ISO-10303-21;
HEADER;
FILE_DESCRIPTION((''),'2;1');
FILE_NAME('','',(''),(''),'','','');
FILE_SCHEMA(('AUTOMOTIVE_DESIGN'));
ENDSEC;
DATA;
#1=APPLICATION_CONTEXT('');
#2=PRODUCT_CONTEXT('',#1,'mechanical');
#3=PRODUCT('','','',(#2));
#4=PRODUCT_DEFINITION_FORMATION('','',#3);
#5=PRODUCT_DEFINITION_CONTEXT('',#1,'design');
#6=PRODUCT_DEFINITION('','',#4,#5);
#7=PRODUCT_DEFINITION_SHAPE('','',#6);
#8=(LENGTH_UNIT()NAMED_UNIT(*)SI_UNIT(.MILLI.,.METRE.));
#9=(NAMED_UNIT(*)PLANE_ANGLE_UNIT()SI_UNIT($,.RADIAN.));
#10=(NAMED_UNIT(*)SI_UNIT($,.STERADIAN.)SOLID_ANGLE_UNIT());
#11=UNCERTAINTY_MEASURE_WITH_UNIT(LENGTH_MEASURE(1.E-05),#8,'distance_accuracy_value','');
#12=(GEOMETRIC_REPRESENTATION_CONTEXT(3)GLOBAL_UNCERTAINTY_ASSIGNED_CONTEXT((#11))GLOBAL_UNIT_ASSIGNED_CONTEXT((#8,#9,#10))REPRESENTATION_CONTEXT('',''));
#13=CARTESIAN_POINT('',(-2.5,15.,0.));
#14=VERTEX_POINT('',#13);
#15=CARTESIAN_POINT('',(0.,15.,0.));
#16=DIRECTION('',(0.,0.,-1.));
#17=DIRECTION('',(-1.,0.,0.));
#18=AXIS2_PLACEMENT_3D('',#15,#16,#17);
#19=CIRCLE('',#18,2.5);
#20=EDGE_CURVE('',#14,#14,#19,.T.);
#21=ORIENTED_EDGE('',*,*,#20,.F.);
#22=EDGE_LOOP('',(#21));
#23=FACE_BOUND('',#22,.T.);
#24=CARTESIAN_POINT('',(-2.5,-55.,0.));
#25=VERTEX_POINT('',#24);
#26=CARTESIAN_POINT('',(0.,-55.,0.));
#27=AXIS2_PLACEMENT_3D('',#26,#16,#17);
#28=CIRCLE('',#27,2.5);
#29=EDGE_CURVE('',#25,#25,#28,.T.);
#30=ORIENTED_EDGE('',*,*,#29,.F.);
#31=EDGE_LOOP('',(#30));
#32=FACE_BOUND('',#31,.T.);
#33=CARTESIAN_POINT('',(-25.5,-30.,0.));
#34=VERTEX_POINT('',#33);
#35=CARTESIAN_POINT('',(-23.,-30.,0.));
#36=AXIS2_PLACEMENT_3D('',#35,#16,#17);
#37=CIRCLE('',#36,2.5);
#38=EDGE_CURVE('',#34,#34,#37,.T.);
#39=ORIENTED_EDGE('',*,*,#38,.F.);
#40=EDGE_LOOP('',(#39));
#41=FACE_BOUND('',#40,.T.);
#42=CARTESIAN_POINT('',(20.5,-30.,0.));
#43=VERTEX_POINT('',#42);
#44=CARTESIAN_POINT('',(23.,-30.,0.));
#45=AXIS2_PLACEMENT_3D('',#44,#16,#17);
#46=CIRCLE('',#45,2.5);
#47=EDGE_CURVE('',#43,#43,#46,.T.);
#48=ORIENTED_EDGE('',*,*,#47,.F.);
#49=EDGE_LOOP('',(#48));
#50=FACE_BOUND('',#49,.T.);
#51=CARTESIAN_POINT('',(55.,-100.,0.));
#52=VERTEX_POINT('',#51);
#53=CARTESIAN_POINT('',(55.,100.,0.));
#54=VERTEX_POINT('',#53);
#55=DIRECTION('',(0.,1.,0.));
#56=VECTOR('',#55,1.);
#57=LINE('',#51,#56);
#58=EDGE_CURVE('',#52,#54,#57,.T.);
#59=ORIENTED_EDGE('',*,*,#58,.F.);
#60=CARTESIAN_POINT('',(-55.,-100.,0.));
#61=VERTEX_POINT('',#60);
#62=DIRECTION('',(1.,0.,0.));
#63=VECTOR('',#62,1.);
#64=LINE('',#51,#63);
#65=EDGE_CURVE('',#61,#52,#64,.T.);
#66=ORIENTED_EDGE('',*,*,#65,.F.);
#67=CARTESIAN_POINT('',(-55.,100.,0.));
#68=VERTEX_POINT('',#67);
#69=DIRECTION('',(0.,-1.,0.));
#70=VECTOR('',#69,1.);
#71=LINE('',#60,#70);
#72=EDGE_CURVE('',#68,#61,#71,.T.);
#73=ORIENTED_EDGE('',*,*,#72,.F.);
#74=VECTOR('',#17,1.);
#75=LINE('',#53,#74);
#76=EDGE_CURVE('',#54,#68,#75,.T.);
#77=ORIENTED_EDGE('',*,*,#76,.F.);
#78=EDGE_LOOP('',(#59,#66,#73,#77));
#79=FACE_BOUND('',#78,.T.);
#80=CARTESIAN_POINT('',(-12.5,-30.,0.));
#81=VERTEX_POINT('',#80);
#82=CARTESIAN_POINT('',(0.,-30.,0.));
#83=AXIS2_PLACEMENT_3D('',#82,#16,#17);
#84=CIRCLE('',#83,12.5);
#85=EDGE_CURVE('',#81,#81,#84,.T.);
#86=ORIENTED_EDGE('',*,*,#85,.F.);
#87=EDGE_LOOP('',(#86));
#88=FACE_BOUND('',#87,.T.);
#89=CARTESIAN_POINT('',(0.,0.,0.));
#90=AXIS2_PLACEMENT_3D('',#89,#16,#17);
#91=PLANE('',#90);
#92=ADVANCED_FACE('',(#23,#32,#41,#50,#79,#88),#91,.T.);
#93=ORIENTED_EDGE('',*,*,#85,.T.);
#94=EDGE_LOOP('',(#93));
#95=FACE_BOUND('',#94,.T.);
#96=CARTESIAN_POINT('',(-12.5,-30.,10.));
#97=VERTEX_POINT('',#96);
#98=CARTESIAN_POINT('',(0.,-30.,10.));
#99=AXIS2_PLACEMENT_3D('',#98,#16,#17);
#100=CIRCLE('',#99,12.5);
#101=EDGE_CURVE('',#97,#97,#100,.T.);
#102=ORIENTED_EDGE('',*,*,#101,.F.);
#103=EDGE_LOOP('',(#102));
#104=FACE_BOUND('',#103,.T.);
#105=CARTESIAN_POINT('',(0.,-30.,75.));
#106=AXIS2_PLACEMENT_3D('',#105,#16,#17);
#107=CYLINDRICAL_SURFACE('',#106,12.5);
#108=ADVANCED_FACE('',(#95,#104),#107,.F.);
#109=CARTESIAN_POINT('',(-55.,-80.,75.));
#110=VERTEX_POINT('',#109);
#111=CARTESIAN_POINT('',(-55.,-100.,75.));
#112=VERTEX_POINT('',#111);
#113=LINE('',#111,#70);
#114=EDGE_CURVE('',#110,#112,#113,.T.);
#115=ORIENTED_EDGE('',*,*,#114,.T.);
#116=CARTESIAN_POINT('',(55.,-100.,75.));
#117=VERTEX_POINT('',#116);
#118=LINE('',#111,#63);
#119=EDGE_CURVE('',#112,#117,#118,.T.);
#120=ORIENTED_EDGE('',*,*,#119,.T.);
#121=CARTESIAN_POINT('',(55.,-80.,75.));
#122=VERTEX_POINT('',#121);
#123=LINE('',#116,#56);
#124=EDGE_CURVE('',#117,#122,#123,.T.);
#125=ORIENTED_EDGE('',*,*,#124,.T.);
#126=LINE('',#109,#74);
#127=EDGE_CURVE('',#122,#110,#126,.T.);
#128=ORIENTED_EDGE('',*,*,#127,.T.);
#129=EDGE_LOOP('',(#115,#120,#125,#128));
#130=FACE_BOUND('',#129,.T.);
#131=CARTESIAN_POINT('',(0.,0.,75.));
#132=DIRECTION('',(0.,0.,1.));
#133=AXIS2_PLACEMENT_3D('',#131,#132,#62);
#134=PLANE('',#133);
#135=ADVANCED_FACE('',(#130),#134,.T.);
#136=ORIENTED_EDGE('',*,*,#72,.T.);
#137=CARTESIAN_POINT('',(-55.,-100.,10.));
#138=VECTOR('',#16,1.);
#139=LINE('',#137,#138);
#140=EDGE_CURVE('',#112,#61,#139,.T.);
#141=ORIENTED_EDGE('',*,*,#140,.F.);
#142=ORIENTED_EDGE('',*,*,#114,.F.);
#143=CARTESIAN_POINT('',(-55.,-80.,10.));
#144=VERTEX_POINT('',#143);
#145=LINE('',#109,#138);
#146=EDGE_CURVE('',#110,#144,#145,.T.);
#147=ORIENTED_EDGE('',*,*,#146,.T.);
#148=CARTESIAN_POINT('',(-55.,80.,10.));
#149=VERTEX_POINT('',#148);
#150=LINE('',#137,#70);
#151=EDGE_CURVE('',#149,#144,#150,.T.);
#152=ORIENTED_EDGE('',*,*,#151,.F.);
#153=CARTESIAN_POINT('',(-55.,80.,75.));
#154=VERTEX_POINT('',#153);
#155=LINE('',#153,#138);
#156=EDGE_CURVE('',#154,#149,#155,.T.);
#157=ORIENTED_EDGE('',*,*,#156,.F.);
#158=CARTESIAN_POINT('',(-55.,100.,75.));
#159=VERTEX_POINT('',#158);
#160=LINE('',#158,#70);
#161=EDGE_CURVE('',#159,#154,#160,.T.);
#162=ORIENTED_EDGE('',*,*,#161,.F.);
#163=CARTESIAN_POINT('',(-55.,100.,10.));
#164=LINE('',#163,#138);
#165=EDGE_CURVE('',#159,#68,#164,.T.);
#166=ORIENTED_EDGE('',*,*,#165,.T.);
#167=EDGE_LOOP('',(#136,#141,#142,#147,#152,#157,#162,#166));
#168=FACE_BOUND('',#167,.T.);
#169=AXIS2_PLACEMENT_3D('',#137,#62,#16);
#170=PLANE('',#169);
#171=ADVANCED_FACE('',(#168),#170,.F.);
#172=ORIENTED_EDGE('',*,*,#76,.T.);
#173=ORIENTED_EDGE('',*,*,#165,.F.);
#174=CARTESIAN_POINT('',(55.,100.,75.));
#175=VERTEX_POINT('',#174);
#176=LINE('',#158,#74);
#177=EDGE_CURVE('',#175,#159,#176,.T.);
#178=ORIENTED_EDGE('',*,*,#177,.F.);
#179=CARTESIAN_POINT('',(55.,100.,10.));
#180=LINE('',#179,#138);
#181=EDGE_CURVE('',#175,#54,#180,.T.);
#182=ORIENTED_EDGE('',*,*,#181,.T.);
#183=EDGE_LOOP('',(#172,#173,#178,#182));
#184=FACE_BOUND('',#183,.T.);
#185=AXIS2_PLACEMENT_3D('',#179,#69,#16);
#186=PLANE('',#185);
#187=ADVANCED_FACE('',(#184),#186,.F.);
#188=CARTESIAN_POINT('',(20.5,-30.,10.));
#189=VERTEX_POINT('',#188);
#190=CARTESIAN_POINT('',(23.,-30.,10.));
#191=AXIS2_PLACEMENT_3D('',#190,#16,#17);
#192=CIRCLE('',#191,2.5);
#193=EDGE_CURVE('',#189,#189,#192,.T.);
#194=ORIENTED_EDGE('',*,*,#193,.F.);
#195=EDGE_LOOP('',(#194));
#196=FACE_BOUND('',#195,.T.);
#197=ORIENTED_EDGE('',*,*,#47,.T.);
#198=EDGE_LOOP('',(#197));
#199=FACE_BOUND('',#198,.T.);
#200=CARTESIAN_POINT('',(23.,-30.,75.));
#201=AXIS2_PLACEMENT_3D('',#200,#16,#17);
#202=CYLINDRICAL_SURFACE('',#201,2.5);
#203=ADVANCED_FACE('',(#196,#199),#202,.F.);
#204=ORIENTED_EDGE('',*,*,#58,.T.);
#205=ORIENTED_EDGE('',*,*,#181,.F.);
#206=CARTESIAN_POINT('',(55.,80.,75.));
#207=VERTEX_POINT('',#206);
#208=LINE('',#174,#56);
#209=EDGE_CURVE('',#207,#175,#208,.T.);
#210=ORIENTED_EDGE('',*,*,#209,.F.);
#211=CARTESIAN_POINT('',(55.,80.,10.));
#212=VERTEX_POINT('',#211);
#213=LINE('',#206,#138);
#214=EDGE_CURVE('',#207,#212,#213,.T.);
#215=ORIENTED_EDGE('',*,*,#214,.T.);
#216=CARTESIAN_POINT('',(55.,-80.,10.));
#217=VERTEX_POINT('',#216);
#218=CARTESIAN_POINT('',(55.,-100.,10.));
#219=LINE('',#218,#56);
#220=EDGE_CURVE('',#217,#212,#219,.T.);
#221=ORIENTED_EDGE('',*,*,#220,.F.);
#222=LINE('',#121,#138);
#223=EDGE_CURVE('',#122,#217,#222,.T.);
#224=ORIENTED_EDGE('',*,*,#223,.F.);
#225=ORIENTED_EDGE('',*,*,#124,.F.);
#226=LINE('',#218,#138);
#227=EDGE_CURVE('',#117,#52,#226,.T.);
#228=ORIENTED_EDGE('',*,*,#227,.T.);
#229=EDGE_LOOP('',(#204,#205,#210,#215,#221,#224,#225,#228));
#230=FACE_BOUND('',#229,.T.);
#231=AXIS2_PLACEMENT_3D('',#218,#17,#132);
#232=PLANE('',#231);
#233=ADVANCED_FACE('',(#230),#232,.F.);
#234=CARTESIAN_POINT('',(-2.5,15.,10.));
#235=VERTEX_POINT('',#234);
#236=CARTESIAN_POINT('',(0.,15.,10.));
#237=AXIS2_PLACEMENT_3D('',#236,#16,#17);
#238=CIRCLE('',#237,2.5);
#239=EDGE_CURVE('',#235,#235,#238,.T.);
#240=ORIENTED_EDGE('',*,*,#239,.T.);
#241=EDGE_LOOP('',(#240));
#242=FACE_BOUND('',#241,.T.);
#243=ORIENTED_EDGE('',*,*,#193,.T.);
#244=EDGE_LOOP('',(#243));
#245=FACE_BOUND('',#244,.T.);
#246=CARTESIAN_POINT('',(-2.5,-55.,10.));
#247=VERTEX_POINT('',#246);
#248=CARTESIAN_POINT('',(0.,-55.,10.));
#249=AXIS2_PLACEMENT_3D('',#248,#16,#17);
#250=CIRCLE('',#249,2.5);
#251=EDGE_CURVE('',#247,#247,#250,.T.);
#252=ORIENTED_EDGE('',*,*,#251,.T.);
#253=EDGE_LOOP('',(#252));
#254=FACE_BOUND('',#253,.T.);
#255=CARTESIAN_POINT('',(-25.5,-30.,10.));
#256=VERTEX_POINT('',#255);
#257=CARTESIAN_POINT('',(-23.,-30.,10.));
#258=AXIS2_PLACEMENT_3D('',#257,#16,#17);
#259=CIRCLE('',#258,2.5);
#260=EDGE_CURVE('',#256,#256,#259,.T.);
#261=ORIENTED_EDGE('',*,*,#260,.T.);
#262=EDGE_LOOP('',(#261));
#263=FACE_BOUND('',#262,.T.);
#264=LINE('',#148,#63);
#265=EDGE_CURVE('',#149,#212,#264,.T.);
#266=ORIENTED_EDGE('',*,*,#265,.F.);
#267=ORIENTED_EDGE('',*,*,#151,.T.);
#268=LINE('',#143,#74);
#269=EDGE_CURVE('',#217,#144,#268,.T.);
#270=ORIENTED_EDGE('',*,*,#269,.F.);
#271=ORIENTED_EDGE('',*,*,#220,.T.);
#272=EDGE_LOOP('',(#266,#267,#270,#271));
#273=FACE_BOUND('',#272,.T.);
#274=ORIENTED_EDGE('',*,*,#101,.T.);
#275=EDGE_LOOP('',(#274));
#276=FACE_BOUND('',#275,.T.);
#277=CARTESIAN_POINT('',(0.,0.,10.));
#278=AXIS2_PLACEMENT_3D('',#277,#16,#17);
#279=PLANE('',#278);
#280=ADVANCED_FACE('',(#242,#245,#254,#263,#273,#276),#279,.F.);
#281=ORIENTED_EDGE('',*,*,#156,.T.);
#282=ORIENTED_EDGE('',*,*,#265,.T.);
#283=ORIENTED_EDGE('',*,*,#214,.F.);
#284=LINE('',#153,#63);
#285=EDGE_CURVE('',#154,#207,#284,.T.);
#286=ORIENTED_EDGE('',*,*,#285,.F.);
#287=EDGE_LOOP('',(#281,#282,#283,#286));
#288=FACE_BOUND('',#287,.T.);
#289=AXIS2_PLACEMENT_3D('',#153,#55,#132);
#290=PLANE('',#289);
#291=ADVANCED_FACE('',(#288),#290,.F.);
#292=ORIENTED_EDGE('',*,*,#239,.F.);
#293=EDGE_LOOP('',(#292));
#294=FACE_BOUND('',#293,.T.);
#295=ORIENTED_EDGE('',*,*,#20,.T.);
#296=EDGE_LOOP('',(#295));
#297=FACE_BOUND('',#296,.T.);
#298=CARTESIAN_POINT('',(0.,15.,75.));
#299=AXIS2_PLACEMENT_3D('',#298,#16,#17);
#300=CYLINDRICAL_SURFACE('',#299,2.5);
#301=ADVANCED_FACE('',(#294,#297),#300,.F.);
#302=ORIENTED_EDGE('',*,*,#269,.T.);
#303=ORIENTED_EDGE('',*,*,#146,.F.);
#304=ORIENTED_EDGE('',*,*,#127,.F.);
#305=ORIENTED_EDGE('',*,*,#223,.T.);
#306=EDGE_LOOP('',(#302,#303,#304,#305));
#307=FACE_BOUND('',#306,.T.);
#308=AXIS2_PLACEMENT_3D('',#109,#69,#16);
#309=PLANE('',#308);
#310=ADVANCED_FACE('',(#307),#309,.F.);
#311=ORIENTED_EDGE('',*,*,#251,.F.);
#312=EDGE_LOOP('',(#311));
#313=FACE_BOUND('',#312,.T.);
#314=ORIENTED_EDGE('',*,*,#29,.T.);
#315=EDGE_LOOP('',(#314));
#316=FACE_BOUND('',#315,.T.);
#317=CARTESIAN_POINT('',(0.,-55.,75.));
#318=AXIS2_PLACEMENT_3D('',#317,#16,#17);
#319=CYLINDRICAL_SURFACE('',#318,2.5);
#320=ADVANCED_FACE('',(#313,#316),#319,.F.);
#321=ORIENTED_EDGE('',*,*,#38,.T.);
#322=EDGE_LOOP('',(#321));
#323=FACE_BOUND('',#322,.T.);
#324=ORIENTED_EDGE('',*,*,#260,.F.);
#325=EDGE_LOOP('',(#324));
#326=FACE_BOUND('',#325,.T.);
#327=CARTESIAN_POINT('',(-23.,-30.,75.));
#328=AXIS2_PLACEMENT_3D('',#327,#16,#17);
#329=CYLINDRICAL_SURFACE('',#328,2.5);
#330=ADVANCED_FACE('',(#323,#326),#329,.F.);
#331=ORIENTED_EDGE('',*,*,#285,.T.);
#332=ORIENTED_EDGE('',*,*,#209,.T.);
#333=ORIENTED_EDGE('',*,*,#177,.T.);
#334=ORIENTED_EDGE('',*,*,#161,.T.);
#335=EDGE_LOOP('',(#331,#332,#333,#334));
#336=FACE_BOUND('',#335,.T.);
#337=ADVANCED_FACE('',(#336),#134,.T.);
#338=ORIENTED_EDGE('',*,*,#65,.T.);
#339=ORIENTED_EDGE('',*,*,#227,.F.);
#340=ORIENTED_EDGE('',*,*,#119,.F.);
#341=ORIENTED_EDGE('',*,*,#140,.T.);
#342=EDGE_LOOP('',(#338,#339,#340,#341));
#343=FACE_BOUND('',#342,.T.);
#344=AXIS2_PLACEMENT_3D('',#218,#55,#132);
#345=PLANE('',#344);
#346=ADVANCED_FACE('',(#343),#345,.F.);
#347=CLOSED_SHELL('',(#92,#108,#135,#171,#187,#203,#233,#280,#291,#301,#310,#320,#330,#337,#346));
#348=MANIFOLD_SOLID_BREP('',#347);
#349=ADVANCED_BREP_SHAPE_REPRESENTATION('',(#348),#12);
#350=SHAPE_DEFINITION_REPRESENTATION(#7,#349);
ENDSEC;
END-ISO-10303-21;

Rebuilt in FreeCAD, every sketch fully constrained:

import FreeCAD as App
import Part
import Sketcher
from FreeCAD import Vector
Q = App.Units.Quantity


def add_polygon(sketch, points):
    """Adds a closed chain of lines whose ends are joined by coincident constraints."""
    first, n = sketch.GeometryCount, len(points)
    for a, b in zip(points, points[1:] + points[:1]):
        sketch.addGeometry(Part.LineSegment(App.Vector(*a, 0), App.Vector(*b, 0)), False)
    for i in range(n):
        sketch.addConstraint(Sketcher.Constraint("Coincident", first + i, 2, first + (i + 1) % n, 1))

doc = App.newDocument("Part")
body = doc.addObject("PartDesign::Body", "Body")

# Sketch on XY plane
sketch1 = body.newObject("Sketcher::SketchObject", "Sketch")
sketch1.AttachmentSupport = (doc.getObject("XY_Plane"), [""])
sketch1.MapMode = "FlatFace"
add_polygon(sketch1, [(-55, -100), (55, -100), (55, 100), (-55, 100)])  # lines 0-3
sketch1.addConstraint([
    Sketcher.Constraint("Horizontal", 0),
    Sketcher.Constraint("Vertical", 1),
    Sketcher.Constraint("Horizontal", 2),
    Sketcher.Constraint("Vertical", 3),
    Sketcher.Constraint("Symmetric", 0, 2, 2, 2, -1, 1),
    Sketcher.Constraint("DistanceX", 0, 1, 0, 2, Q("110 mm")),
    Sketcher.Constraint("DistanceY", 1, 1, 1, 2, Q("200 mm")),
])
pad1 = body.newObject("PartDesign::Pad", "Pad")
pad1.Profile = sketch1
pad1.Length = 10

# Sketch on XY plane
sketch2 = body.newObject("Sketcher::SketchObject", "Sketch001")
sketch2.AttachmentSupport = (doc.getObject("XY_Plane"), [""])
sketch2.MapMode = "FlatFace"
sketch2.AttachmentOffset = App.Placement(Vector(0, 0, 10), App.Rotation())
add_polygon(sketch2, [(-55, 100), (-55, 80), (55, 80), (55, 100)])  # lines 0-3
add_polygon(sketch2, [(-55, -80), (-55, -100), (55, -100), (55, -80)])  # lines 4-7
sketch2.addConstraint([
    Sketcher.Constraint("Vertical", 0),
    Sketcher.Constraint("Horizontal", 1),
    Sketcher.Constraint("Vertical", 2),
    Sketcher.Constraint("Horizontal", 3),
    Sketcher.Constraint("Vertical", 4),
    Sketcher.Constraint("Horizontal", 5),
    Sketcher.Constraint("Vertical", 6),
    Sketcher.Constraint("Horizontal", 7),
    Sketcher.Constraint("Symmetric", 2, 2, 4, 2, -1, 1),
    Sketcher.Constraint("Symmetric", 0, 2, 6, 2, -1, 1),
    Sketcher.Constraint("Vertical", 3, 2, 4, 2),
    Sketcher.Constraint("DistanceX", 1, 1, 1, 2, Q("110 mm")),
    Sketcher.Constraint("DistanceY", 0, 2, 0, 1, Q("20 mm")),
    Sketcher.Constraint("DistanceY", -1, 1, 0, 2, Q("80 mm")),
])
pad2 = body.newObject("PartDesign::Pad", "Pad001")
pad2.Profile = sketch2
pad2.Length = 65

# Sketch on XY plane
sketch3 = body.newObject("Sketcher::SketchObject", "Sketch002")
sketch3.AttachmentSupport = (doc.getObject("XY_Plane"), [""])
sketch3.MapMode = "FlatFace"
sketch3.addGeometry(Part.Circle(Vector(0, -30, 0), Vector(0, 0, 1), 12.5), False)
sketch3.addConstraint([
    Sketcher.Constraint("PointOnObject", 0, 3, -2),
    Sketcher.Constraint("Diameter", 0, Q("25 mm")),
    Sketcher.Constraint("DistanceY", 0, 3, -1, 1, Q("30 mm")),
])
pocket1 = body.newObject("PartDesign::Pocket", "Pocket")
pocket1.Profile = sketch3
pocket1.Type = "ThroughAll"
pocket1.Reversed = True

# Sketch on XY plane
sketch4 = body.newObject("Sketcher::SketchObject", "Sketch003")
sketch4.AttachmentSupport = (doc.getObject("XY_Plane"), [""])
sketch4.MapMode = "FlatFace"
sketch4.addGeometry([
    Part.Circle(Vector(23, -30, 0), Vector(0, 0, 1), 2.5),
    Part.Circle(Vector(-23, -30, 0), Vector(0, 0, 1), 2.5),
], False)
sketch4.addConstraint([
    Sketcher.Constraint("Equal", 0, 1),
    Sketcher.Constraint("Symmetric", 0, 3, 1, 3, -2),
    Sketcher.Constraint("Diameter", 0, Q("5 mm")),
    Sketcher.Constraint("DistanceX", -1, 1, 0, 3, Q("23 mm")),
    Sketcher.Constraint("DistanceY", 0, 3, -1, 1, Q("30 mm")),
])
pocket2 = body.newObject("PartDesign::Pocket", "Pocket001")
pocket2.Profile = sketch4
pocket2.Type = "ThroughAll"
pocket2.Reversed = True

# Sketch on XY plane
sketch5 = body.newObject("Sketcher::SketchObject", "Sketch004")
sketch5.AttachmentSupport = (doc.getObject("XY_Plane"), [""])
sketch5.MapMode = "FlatFace"
sketch5.addGeometry([
    Part.Circle(Vector(0, -55, 0), Vector(0, 0, 1), 2.5),
    Part.Circle(Vector(0, 15, 0), Vector(0, 0, 1), 2.5),
], False)
sketch5.addConstraint([
    Sketcher.Constraint("Equal", 0, 1),
    Sketcher.Constraint("PointOnObject", 0, 3, -2),
    Sketcher.Constraint("PointOnObject", 1, 3, -2),
    Sketcher.Constraint("Diameter", 0, Q("5 mm")),
    Sketcher.Constraint("DistanceY", 0, 3, -1, 1, Q("55 mm")),
    Sketcher.Constraint("DistanceY", -1, 1, 1, 3, Q("15 mm")),
])
pocket3 = body.newObject("PartDesign::Pocket", "Pocket002")
pocket3.Profile = sketch5
pocket3.Type = "ThroughAll"
pocket3.Reversed = True

doc.recompute()
